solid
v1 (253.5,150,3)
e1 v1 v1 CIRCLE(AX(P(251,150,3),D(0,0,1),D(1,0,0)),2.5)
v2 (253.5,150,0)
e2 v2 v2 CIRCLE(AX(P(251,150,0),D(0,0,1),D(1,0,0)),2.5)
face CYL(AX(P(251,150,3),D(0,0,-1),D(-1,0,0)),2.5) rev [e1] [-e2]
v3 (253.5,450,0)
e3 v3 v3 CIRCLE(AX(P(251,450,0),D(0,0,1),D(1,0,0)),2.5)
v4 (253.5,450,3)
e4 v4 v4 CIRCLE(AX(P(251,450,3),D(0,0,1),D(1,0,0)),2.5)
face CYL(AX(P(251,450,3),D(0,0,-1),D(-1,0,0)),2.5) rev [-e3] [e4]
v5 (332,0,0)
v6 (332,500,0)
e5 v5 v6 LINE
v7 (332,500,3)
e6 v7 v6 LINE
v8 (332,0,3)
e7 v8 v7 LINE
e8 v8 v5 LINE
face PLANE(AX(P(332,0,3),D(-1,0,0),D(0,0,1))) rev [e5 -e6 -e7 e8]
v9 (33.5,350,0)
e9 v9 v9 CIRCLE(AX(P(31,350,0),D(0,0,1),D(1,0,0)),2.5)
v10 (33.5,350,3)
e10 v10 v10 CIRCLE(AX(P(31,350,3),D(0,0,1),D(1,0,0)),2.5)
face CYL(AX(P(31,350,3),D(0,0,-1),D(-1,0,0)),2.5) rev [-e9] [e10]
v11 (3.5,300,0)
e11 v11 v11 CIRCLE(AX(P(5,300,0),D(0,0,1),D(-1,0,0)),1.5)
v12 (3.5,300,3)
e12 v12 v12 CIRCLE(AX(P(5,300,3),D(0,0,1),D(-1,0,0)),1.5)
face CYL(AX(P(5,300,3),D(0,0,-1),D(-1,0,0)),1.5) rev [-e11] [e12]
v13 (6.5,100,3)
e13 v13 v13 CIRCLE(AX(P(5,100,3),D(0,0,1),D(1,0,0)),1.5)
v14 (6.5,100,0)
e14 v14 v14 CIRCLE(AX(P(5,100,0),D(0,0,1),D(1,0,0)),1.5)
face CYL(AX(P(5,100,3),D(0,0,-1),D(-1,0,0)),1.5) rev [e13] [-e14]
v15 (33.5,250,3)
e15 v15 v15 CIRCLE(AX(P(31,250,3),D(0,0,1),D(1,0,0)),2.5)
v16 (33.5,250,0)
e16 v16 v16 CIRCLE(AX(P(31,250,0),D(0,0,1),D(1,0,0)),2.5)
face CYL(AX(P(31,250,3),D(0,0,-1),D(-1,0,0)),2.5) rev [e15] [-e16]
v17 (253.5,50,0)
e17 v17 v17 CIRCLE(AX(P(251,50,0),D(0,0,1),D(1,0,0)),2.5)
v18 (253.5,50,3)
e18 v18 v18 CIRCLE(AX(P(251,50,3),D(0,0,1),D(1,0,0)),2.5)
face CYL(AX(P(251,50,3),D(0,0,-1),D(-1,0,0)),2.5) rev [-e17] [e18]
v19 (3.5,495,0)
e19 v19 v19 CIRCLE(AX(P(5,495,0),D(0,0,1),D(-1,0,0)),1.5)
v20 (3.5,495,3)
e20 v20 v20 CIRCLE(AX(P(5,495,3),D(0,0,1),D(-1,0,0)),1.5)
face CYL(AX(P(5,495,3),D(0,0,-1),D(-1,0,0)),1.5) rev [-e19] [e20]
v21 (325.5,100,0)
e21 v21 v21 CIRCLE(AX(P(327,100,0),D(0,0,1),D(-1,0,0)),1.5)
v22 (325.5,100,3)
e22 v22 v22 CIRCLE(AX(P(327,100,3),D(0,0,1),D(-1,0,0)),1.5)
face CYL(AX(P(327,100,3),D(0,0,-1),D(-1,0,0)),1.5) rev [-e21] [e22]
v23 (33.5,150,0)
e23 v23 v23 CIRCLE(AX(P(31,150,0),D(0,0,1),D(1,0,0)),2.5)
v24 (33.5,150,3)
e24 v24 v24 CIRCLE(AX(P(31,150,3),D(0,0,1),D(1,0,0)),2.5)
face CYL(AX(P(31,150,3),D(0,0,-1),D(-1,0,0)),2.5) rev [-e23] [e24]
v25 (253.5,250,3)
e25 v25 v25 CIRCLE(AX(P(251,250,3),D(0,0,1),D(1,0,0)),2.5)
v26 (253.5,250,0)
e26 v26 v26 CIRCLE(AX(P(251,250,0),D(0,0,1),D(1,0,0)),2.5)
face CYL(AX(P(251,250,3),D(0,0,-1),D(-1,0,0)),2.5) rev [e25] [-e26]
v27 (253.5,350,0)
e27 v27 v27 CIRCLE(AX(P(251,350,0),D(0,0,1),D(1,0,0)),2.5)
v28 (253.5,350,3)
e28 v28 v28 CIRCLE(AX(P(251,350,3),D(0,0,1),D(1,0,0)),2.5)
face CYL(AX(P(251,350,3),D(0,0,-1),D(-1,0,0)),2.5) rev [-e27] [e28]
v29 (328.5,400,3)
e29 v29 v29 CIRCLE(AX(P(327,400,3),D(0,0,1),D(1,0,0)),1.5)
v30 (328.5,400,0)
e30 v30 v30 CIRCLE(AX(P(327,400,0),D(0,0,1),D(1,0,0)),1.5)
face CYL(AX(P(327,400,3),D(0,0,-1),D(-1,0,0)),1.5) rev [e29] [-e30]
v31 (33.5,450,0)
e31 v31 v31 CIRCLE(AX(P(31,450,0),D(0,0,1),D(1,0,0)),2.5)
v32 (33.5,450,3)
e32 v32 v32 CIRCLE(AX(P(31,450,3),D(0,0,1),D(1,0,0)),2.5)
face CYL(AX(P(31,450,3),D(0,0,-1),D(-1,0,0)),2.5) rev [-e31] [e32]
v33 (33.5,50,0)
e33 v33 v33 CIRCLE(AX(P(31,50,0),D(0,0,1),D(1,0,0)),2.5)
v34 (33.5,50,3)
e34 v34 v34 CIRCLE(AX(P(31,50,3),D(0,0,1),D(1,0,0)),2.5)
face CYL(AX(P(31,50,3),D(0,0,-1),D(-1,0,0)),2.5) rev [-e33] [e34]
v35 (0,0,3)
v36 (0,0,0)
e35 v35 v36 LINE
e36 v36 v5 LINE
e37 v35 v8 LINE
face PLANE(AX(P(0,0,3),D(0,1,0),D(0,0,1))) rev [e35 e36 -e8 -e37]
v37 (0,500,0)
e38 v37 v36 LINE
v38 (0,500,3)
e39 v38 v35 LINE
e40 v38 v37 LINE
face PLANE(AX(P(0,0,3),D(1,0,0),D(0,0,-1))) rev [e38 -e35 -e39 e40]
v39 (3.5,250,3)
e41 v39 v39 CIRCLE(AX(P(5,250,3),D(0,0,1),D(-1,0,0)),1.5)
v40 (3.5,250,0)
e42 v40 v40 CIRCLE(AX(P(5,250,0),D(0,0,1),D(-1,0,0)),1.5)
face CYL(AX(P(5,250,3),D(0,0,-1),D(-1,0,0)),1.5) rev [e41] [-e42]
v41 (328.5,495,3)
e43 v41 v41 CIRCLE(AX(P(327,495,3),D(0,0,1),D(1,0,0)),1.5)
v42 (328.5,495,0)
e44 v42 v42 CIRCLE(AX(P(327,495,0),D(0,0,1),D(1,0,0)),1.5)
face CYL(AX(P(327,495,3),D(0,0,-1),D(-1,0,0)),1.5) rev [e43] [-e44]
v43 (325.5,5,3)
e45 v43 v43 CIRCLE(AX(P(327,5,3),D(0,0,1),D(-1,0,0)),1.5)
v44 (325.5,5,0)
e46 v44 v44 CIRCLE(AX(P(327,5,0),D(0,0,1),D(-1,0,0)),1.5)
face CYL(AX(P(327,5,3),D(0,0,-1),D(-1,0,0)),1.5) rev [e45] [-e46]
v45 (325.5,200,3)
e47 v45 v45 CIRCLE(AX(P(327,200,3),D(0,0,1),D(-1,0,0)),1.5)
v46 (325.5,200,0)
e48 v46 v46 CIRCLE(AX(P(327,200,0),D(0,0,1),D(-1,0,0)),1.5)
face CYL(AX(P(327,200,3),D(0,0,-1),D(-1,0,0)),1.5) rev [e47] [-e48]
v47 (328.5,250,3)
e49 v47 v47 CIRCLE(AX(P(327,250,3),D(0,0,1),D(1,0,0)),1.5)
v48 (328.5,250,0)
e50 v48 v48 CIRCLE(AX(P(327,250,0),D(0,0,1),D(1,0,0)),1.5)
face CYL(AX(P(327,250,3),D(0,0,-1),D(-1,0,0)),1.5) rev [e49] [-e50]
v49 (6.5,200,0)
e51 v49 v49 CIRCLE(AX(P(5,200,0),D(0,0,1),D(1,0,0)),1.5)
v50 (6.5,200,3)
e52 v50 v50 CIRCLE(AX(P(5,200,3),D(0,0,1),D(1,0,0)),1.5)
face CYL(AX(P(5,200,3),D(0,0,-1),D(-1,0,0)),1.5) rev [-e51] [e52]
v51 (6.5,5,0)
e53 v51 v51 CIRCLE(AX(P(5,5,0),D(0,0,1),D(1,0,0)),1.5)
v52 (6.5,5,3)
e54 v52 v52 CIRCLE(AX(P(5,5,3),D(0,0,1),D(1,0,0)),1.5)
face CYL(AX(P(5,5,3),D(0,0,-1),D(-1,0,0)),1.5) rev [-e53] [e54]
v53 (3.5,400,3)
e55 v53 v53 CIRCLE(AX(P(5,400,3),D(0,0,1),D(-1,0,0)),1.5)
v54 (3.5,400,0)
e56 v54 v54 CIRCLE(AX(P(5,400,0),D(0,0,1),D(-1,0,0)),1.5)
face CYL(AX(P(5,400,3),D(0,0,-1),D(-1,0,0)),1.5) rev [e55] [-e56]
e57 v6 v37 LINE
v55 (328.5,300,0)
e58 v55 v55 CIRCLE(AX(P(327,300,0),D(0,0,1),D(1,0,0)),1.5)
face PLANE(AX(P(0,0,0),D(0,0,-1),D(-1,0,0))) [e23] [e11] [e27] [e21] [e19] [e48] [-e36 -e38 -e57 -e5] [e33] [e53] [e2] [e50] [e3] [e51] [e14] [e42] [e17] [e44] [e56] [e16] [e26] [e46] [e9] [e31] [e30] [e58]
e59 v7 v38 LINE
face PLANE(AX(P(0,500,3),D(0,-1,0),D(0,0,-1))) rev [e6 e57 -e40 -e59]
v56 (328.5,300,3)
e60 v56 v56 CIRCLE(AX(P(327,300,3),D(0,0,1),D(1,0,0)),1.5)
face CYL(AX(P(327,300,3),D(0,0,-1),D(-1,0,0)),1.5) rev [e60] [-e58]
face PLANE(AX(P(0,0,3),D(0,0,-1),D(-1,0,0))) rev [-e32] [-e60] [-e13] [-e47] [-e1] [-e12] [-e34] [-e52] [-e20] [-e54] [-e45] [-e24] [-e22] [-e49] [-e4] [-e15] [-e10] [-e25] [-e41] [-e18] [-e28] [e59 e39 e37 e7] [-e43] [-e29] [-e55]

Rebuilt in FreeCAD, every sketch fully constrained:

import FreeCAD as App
import Part
import Sketcher

V = App.Vector

doc = App.newDocument("Part")
body = doc.addObject("PartDesign::Body", "Body")

# Sketch on XY plane
sketch1 = body.newObject("Sketcher::SketchObject", "Sketch")
sketch1.AttachmentSupport = (doc.getObject("XY_Plane"), [""])
sketch1.MapMode = "FlatFace"
sketch1.addGeometry(Part.LineSegment(V(0, 500, 0), V(0, 0, 0)), False)
sketch1.addGeometry(Part.LineSegment(V(0, 0, 0), V(332, 0, 0)), False)
sketch1.addGeometry(Part.LineSegment(V(332, 0, 0), V(332, 500, 0)), False)
sketch1.addGeometry(Part.LineSegment(V(332, 500, 0), V(0, 500, 0)), False)
sketch1.addGeometry(Part.Circle(V(5, 5, 0), V(0, 0, 1), 1.5), False)
sketch1.addGeometry(Part.Circle(V(31, 50, 0), V(0, 0, 1), 2.5), False)
sketch1.addGeometry(Part.Circle(V(5, 100, 0), V(0, 0, 1), 1.5), False)
sketch1.addGeometry(Part.Circle(V(31, 150, 0), V(0, 0, 1), 2.5), False)
sketch1.addGeometry(Part.Circle(V(5, 200, 0), V(0, 0, 1), 1.5), False)
sketch1.addGeometry(Part.Circle(V(251, 50, 0), V(0, 0, 1), 2.5), False)
sketch1.addGeometry(Part.Circle(V(327, 5, 0), V(0, 0, 1), 1.5), False)
sketch1.addGeometry(Part.Circle(V(327, 100, 0), V(0, 0, 1), 1.5), False)
sketch1.addGeometry(Part.Circle(V(251, 150, 0), V(0, 0, 1), 2.5), False)
sketch1.addGeometry(Part.Circle(V(327, 200, 0), V(0, 0, 1), 1.5), False)
sketch1.addGeometry(Part.Circle(V(5, 250, 0), V(0, 0, 1), 1.5), False)
sketch1.addGeometry(Part.Circle(V(31, 250, 0), V(0, 0, 1), 2.5), False)
sketch1.addGeometry(Part.Circle(V(5, 300, 0), V(0, 0, 1), 1.5), False)
sketch1.addGeometry(Part.Circle(V(31, 350, 0), V(0, 0, 1), 2.5), False)
sketch1.addGeometry(Part.Circle(V(5, 400, 0), V(0, 0, 1), 1.5), False)
sketch1.addGeometry(Part.Circle(V(31, 450, 0), V(0, 0, 1), 2.5), False)
sketch1.addGeometry(Part.Circle(V(5, 495, 0), V(0, 0, 1), 1.5), False)
sketch1.addGeometry(Part.Circle(V(251, 250, 0), V(0, 0, 1), 2.5), False)
sketch1.addGeometry(Part.Circle(V(327, 250, 0), V(0, 0, 1), 1.5), False)
sketch1.addGeometry(Part.Circle(V(327, 300, 0), V(0, 0, 1), 1.5), False)
sketch1.addGeometry(Part.Circle(V(251, 350, 0), V(0, 0, 1), 2.5), False)
sketch1.addGeometry(Part.Circle(V(327, 400, 0), V(0, 0, 1), 1.5), False)
sketch1.addGeometry(Part.Circle(V(251, 450, 0), V(0, 0, 1), 2.5), False)
sketch1.addGeometry(Part.Circle(V(327, 495, 0), V(0, 0, 1), 1.5), False)
sketch1.addConstraint(Sketcher.Constraint("Coincident", 0, 2, 1, 1))
sketch1.addConstraint(Sketcher.Constraint("Coincident", 1, 2, 2, 1))
sketch1.addConstraint(Sketcher.Constraint("Coincident", 2, 2, 3, 1))
sketch1.addConstraint(Sketcher.Constraint("Coincident", 3, 2, 0, 1))
sketch1.addConstraint(Sketcher.Constraint("Vertical", 0))
sketch1.addConstraint(Sketcher.Constraint("Horizontal", 1))
sketch1.addConstraint(Sketcher.Constraint("Vertical", 2))
sketch1.addConstraint(Sketcher.Constraint("Horizontal", 3))
sketch1.addConstraint(Sketcher.Constraint("Coincident", 0, 2, -1, 1))
sketch1.addConstraint(Sketcher.Constraint("Equal", 4, 6))
sketch1.addConstraint(Sketcher.Constraint("Equal", 5, 7))
sketch1.addConstraint(Sketcher.Constraint("Equal", 6, 8))
sketch1.addConstraint(Sketcher.Constraint("Equal", 7, 9))
sketch1.addConstraint(Sketcher.Constraint("Equal", 8, 10))
sketch1.addConstraint(Sketcher.Constraint("Equal", 10, 11))
sketch1.addConstraint(Sketcher.Constraint("Equal", 9, 12))
sketch1.addConstraint(Sketcher.Constraint("Equal", 11, 13))
sketch1.addConstraint(Sketcher.Constraint("Equal", 13, 14))
sketch1.addConstraint(Sketcher.Constraint("Equal", 12, 15))
sketch1.addConstraint(Sketcher.Constraint("Equal", 14, 16))
sketch1.addConstraint(Sketcher.Constraint("Equal", 15, 17))
sketch1.addConstraint(Sketcher.Constraint("Equal", 16, 18))
sketch1.addConstraint(Sketcher.Constraint("Equal", 17, 19))
sketch1.addConstraint(Sketcher.Constraint("Equal", 18, 20))
sketch1.addConstraint(Sketcher.Constraint("Equal", 19, 21))
sketch1.addConstraint(Sketcher.Constraint("Equal", 20, 22))
sketch1.addConstraint(Sketcher.Constraint("Equal", 22, 23))
sketch1.addConstraint(Sketcher.Constraint("Equal", 21, 24))
sketch1.addConstraint(Sketcher.Constraint("Equal", 23, 25))
sketch1.addConstraint(Sketcher.Constraint("Equal", 24, 26))
sketch1.addConstraint(Sketcher.Constraint("Equal", 25, 27))
sketch1.addConstraint(Sketcher.Constraint("Horizontal", 5, 3, 9, 3))
sketch1.addConstraint(Sketcher.Constraint("Horizontal", 4, 3, 10, 3))
sketch1.addConstraint(Sketcher.Constraint("Horizontal", 6, 3, 11, 3))
sketch1.addConstraint(Sketcher.Constraint("Horizontal", 7, 3, 12, 3))
sketch1.addConstraint(Sketcher.Constraint("Horizontal", 8, 3, 13, 3))
sketch1.addConstraint(Sketcher.Constraint("Horizontal", 14, 3, 15, 3))
sketch1.addConstraint(Sketcher.Constraint("Horizontal", 15, 3, 21, 3))
sketch1.addConstraint(Sketcher.Constraint("Horizontal", 21, 3, 22, 3))
sketch1.addConstraint(Sketcher.Constraint("Horizontal", 16, 3, 23, 3))
sketch1.addConstraint(Sketcher.Constraint("Horizontal", 17, 3, 24, 3))
sketch1.addConstraint(Sketcher.Constraint("Horizontal", 18, 3, 25, 3))
sketch1.addConstraint(Sketcher.Constraint("Horizontal", 19, 3, 26, 3))
sketch1.addConstraint(Sketcher.Constraint("Horizontal", 20, 3, 27, 3))
sketch1.addConstraint(Sketcher.Constraint("Vertical", 4, 3, 6, 3))
sketch1.addConstraint(Sketcher.Constraint("Vertical", 5, 3, 7, 3))
sketch1.addConstraint(Sketcher.Constraint("Vertical", 6, 3, 8, 3))
sketch1.addConstraint(Sketcher.Constraint("Vertical", 10, 3, 11, 3))
sketch1.addConstraint(Sketcher.Constraint("Vertical", 9, 3, 12, 3))
sketch1.addConstraint(Sketcher.Constraint("Vertical", 11, 3, 13, 3))
sketch1.addConstraint(Sketcher.Constraint("Vertical", 8, 3, 14, 3))
sketch1.addConstraint(Sketcher.Constraint("Vertical", 7, 3, 15, 3))
sketch1.addConstraint(Sketcher.Constraint("Vertical", 14, 3, 16, 3))
sketch1.addConstraint(Sketcher.Constraint("Vertical", 15, 3, 17, 3))
sketch1.addConstraint(Sketcher.Constraint("Vertical", 16, 3, 18, 3))
sketch1.addConstraint(Sketcher.Constraint("Vertical", 17, 3, 19, 3))
sketch1.addConstraint(Sketcher.Constraint("Vertical", 18, 3, 20, 3))
sketch1.addConstraint(Sketcher.Constraint("Vertical", 12, 3, 21, 3))
sketch1.addConstraint(Sketcher.Constraint("Vertical", 13, 3, 22, 3))
sketch1.addConstraint(Sketcher.Constraint("Vertical", 22, 3, 23, 3))
sketch1.addConstraint(Sketcher.Constraint("Vertical", 21, 3, 24, 3))
sketch1.addConstraint(Sketcher.Constraint("Vertical", 23, 3, 25, 3))
sketch1.addConstraint(Sketcher.Constraint("Vertical", 24, 3, 26, 3))
sketch1.addConstraint(Sketcher.Constraint("Vertical", 25, 3, 27, 3))
sketch1.addConstraint(Sketcher.Constraint("Diameter", 4, 3.0))
sketch1.addConstraint(Sketcher.Constraint("Diameter", 5, 5.0))
sketch1.addConstraint(Sketcher.Constraint("DistanceX", 1, 1, 1, 2, 332.0))
sketch1.addConstraint(Sketcher.Constraint("DistanceY", 0, 2, 0, 1, 500.0))
sketch1.addConstraint(Sketcher.Constraint("DistanceX", -1, 1, 4, 3, 5.0))
sketch1.addConstraint(Sketcher.Constraint("DistanceY", -1, 1, 4, 3, 5.0))
sketch1.addConstraint(Sketcher.Constraint("DistanceX", -1, 1, 5, 3, 31.0))
sketch1.addConstraint(Sketcher.Constraint("DistanceY", -1, 1, 5, 3, 50.0))
sketch1.addConstraint(Sketcher.Constraint("DistanceY", -1, 1, 6, 3, 100.0))
sketch1.addConstraint(Sketcher.Constraint("DistanceY", -1, 1, 7, 3, 150.0))
sketch1.addConstraint(Sketcher.Constraint("DistanceY", -1, 1, 8, 3, 200.0))
sketch1.addConstraint(Sketcher.Constraint("DistanceX", -1, 1, 9, 3, 251.0))
sketch1.addConstraint(Sketcher.Constraint("DistanceX", -1, 1, 10, 3, 327.0))
sketch1.addConstraint(Sketcher.Constraint("DistanceY", -1, 1, 14, 3, 250.0))
sketch1.addConstraint(Sketcher.Constraint("DistanceY", -1, 1, 16, 3, 300.0))
sketch1.addConstraint(Sketcher.Constraint("DistanceY", -1, 1, 17, 3, 350.0))
sketch1.addConstraint(Sketcher.Constraint("DistanceY", -1, 1, 18, 3, 400.0))
sketch1.addConstraint(Sketcher.Constraint("DistanceY", -1, 1, 19, 3, 450.0))
sketch1.addConstraint(Sketcher.Constraint("DistanceY", -1, 1, 20, 3, 495.0))
pad1 = body.newObject("PartDesign::Pad", "Pad")
pad1.Profile = sketch1
pad1.Length = 3

doc.recompute()
